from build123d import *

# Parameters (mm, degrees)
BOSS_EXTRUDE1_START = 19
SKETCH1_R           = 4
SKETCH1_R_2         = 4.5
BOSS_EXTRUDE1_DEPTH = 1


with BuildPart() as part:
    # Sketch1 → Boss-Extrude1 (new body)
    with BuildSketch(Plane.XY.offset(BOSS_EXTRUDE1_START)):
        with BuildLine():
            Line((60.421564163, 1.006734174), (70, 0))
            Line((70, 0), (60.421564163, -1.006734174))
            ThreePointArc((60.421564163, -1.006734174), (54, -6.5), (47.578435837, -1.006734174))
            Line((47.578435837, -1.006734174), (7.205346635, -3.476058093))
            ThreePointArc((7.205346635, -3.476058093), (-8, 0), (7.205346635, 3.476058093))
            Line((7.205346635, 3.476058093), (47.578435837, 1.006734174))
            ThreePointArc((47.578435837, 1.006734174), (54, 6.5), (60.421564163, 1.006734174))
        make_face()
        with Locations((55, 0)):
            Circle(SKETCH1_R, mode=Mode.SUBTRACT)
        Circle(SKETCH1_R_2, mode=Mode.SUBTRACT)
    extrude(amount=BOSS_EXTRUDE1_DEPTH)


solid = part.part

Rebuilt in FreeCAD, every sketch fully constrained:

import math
import FreeCAD as App
import Part
import Sketcher

V = App.Vector
Q = App.Units.Quantity

doc = App.newDocument("Part")
body = doc.addObject("PartDesign::Body", "Body")

sketch1 = body.newObject("Sketcher::SketchObject", "Sketch")
sketch1.AttachmentSupport = (doc.getObject("XY_Plane"), [""])
sketch1.MapMode = "FlatFace"
sketch1.AttachmentOffset = App.Placement(V(0, 0, 19), App.Rotation())
sketch1.addGeometry(Part.LineSegment(V(70, 0, 0), V(60.4, 1, 0)), False)
sketch1.addGeometry(Part.ArcOfCircle(Part.Circle(V(54, 0, 0), V(0, 0, 1), 6.5), math.radians(9), math.radians(171)), False)
sketch1.addGeometry(Part.LineSegment(V(47.6, 1, 0), V(7.2, 3.5, 0)), False)
sketch1.addGeometry(Part.ArcOfCircle(Part.Circle(V(0, 0, 0), V(0, 0, 1), 8), math.radians(26), math.radians(334)), False)
sketch1.addGeometry(Part.LineSegment(V(7.2, -3.5, 0), V(47.6, -1, 0)), False)
sketch1.addGeometry(Part.ArcOfCircle(Part.Circle(V(54, 0, 0), V(0, 0, 1), 6.5), math.radians(-171), math.radians(-9)), False)
sketch1.addGeometry(Part.LineSegment(V(60.4, -1, 0), V(70, 0, 0)), False)
sketch1.addGeometry(Part.Circle(V(55, 0, 0), V(0, 0, 1), 4), False)
sketch1.addGeometry(Part.Circle(V(0, 0, 0), V(0, 0, 1), 4.5), False)
sketch1.addConstraint(Sketcher.Constraint("Coincident", 0, 2, 1, 1))
sketch1.addConstraint(Sketcher.Constraint("Coincident", 1, 2, 2, 1))
sketch1.addConstraint(Sketcher.Constraint("Coincident", 2, 2, 3, 1))
sketch1.addConstraint(Sketcher.Constraint("Coincident", 3, 2, 4, 1))
sketch1.addConstraint(Sketcher.Constraint("Coincident", 4, 2, 5, 1))
sketch1.addConstraint(Sketcher.Constraint("Coincident", 5, 2, 6, 1))
sketch1.addConstraint(Sketcher.Constraint("Coincident", 6, 2, 0, 1))
sketch1.addConstraint(Sketcher.Constraint("Coincident", 3, 3, -1, 1))
sketch1.addConstraint(Sketcher.Constraint("Coincident", 8, 3, -1, 1))
sketch1.addConstraint(Sketcher.Constraint("Coincident", 5, 3, 1, 3))
sketch1.addConstraint(Sketcher.Constraint("Equal", 1, 5))
sketch1.addConstraint(Sketcher.Constraint("Symmetric", 1, 2, 4, 2, -1))
sketch1.addConstraint(Sketcher.Constraint("PointOnObject", 7, 3, -1))
sketch1.addConstraint(Sketcher.Constraint("PointOnObject", 6, 2, -1))
sketch1.addConstraint(Sketcher.Constraint("Horizontal", 0, 2, 1, 2))
sketch1.addConstraint(Sketcher.Constraint("Horizontal", 4, 2, 5, 2))
sketch1.addConstraint(Sketcher.Constraint("Vertical", 2, 2, 3, 2))
sketch1.addConstraint(Sketcher.Constraint("Diameter", 7, Q("8 mm")))
sketch1.addConstraint(Sketcher.Constraint("Diameter", 8, Q("9 mm")))
sketch1.addConstraint(Sketcher.Constraint("Radius", 3, Q("8 mm")))
sketch1.addConstraint(Sketcher.Constraint("Radius", 1, Q("6.5 mm")))
sketch1.addConstraint(Sketcher.Constraint("Angle", 0, Q("174 deg")))
sketch1.addConstraint(Sketcher.Constraint("DistanceX", -1, 1, 1, 3, Q("54 mm")))
sketch1.addConstraint(Sketcher.Constraint("DistanceX", -1, 1, 7, 3, Q("55 mm")))
sketch1.addConstraint(Sketcher.Constraint("DistanceX", -1, 1, 6, 2, Q("70 mm")))
sketch1.addConstraint(Sketcher.Constraint("Angle", 2, Q("176.5 deg")))
pad1 = body.newObject("PartDesign::Pad", "Pad")
pad1.Profile = sketch1
pad1.Length = 1

doc.recompute()
